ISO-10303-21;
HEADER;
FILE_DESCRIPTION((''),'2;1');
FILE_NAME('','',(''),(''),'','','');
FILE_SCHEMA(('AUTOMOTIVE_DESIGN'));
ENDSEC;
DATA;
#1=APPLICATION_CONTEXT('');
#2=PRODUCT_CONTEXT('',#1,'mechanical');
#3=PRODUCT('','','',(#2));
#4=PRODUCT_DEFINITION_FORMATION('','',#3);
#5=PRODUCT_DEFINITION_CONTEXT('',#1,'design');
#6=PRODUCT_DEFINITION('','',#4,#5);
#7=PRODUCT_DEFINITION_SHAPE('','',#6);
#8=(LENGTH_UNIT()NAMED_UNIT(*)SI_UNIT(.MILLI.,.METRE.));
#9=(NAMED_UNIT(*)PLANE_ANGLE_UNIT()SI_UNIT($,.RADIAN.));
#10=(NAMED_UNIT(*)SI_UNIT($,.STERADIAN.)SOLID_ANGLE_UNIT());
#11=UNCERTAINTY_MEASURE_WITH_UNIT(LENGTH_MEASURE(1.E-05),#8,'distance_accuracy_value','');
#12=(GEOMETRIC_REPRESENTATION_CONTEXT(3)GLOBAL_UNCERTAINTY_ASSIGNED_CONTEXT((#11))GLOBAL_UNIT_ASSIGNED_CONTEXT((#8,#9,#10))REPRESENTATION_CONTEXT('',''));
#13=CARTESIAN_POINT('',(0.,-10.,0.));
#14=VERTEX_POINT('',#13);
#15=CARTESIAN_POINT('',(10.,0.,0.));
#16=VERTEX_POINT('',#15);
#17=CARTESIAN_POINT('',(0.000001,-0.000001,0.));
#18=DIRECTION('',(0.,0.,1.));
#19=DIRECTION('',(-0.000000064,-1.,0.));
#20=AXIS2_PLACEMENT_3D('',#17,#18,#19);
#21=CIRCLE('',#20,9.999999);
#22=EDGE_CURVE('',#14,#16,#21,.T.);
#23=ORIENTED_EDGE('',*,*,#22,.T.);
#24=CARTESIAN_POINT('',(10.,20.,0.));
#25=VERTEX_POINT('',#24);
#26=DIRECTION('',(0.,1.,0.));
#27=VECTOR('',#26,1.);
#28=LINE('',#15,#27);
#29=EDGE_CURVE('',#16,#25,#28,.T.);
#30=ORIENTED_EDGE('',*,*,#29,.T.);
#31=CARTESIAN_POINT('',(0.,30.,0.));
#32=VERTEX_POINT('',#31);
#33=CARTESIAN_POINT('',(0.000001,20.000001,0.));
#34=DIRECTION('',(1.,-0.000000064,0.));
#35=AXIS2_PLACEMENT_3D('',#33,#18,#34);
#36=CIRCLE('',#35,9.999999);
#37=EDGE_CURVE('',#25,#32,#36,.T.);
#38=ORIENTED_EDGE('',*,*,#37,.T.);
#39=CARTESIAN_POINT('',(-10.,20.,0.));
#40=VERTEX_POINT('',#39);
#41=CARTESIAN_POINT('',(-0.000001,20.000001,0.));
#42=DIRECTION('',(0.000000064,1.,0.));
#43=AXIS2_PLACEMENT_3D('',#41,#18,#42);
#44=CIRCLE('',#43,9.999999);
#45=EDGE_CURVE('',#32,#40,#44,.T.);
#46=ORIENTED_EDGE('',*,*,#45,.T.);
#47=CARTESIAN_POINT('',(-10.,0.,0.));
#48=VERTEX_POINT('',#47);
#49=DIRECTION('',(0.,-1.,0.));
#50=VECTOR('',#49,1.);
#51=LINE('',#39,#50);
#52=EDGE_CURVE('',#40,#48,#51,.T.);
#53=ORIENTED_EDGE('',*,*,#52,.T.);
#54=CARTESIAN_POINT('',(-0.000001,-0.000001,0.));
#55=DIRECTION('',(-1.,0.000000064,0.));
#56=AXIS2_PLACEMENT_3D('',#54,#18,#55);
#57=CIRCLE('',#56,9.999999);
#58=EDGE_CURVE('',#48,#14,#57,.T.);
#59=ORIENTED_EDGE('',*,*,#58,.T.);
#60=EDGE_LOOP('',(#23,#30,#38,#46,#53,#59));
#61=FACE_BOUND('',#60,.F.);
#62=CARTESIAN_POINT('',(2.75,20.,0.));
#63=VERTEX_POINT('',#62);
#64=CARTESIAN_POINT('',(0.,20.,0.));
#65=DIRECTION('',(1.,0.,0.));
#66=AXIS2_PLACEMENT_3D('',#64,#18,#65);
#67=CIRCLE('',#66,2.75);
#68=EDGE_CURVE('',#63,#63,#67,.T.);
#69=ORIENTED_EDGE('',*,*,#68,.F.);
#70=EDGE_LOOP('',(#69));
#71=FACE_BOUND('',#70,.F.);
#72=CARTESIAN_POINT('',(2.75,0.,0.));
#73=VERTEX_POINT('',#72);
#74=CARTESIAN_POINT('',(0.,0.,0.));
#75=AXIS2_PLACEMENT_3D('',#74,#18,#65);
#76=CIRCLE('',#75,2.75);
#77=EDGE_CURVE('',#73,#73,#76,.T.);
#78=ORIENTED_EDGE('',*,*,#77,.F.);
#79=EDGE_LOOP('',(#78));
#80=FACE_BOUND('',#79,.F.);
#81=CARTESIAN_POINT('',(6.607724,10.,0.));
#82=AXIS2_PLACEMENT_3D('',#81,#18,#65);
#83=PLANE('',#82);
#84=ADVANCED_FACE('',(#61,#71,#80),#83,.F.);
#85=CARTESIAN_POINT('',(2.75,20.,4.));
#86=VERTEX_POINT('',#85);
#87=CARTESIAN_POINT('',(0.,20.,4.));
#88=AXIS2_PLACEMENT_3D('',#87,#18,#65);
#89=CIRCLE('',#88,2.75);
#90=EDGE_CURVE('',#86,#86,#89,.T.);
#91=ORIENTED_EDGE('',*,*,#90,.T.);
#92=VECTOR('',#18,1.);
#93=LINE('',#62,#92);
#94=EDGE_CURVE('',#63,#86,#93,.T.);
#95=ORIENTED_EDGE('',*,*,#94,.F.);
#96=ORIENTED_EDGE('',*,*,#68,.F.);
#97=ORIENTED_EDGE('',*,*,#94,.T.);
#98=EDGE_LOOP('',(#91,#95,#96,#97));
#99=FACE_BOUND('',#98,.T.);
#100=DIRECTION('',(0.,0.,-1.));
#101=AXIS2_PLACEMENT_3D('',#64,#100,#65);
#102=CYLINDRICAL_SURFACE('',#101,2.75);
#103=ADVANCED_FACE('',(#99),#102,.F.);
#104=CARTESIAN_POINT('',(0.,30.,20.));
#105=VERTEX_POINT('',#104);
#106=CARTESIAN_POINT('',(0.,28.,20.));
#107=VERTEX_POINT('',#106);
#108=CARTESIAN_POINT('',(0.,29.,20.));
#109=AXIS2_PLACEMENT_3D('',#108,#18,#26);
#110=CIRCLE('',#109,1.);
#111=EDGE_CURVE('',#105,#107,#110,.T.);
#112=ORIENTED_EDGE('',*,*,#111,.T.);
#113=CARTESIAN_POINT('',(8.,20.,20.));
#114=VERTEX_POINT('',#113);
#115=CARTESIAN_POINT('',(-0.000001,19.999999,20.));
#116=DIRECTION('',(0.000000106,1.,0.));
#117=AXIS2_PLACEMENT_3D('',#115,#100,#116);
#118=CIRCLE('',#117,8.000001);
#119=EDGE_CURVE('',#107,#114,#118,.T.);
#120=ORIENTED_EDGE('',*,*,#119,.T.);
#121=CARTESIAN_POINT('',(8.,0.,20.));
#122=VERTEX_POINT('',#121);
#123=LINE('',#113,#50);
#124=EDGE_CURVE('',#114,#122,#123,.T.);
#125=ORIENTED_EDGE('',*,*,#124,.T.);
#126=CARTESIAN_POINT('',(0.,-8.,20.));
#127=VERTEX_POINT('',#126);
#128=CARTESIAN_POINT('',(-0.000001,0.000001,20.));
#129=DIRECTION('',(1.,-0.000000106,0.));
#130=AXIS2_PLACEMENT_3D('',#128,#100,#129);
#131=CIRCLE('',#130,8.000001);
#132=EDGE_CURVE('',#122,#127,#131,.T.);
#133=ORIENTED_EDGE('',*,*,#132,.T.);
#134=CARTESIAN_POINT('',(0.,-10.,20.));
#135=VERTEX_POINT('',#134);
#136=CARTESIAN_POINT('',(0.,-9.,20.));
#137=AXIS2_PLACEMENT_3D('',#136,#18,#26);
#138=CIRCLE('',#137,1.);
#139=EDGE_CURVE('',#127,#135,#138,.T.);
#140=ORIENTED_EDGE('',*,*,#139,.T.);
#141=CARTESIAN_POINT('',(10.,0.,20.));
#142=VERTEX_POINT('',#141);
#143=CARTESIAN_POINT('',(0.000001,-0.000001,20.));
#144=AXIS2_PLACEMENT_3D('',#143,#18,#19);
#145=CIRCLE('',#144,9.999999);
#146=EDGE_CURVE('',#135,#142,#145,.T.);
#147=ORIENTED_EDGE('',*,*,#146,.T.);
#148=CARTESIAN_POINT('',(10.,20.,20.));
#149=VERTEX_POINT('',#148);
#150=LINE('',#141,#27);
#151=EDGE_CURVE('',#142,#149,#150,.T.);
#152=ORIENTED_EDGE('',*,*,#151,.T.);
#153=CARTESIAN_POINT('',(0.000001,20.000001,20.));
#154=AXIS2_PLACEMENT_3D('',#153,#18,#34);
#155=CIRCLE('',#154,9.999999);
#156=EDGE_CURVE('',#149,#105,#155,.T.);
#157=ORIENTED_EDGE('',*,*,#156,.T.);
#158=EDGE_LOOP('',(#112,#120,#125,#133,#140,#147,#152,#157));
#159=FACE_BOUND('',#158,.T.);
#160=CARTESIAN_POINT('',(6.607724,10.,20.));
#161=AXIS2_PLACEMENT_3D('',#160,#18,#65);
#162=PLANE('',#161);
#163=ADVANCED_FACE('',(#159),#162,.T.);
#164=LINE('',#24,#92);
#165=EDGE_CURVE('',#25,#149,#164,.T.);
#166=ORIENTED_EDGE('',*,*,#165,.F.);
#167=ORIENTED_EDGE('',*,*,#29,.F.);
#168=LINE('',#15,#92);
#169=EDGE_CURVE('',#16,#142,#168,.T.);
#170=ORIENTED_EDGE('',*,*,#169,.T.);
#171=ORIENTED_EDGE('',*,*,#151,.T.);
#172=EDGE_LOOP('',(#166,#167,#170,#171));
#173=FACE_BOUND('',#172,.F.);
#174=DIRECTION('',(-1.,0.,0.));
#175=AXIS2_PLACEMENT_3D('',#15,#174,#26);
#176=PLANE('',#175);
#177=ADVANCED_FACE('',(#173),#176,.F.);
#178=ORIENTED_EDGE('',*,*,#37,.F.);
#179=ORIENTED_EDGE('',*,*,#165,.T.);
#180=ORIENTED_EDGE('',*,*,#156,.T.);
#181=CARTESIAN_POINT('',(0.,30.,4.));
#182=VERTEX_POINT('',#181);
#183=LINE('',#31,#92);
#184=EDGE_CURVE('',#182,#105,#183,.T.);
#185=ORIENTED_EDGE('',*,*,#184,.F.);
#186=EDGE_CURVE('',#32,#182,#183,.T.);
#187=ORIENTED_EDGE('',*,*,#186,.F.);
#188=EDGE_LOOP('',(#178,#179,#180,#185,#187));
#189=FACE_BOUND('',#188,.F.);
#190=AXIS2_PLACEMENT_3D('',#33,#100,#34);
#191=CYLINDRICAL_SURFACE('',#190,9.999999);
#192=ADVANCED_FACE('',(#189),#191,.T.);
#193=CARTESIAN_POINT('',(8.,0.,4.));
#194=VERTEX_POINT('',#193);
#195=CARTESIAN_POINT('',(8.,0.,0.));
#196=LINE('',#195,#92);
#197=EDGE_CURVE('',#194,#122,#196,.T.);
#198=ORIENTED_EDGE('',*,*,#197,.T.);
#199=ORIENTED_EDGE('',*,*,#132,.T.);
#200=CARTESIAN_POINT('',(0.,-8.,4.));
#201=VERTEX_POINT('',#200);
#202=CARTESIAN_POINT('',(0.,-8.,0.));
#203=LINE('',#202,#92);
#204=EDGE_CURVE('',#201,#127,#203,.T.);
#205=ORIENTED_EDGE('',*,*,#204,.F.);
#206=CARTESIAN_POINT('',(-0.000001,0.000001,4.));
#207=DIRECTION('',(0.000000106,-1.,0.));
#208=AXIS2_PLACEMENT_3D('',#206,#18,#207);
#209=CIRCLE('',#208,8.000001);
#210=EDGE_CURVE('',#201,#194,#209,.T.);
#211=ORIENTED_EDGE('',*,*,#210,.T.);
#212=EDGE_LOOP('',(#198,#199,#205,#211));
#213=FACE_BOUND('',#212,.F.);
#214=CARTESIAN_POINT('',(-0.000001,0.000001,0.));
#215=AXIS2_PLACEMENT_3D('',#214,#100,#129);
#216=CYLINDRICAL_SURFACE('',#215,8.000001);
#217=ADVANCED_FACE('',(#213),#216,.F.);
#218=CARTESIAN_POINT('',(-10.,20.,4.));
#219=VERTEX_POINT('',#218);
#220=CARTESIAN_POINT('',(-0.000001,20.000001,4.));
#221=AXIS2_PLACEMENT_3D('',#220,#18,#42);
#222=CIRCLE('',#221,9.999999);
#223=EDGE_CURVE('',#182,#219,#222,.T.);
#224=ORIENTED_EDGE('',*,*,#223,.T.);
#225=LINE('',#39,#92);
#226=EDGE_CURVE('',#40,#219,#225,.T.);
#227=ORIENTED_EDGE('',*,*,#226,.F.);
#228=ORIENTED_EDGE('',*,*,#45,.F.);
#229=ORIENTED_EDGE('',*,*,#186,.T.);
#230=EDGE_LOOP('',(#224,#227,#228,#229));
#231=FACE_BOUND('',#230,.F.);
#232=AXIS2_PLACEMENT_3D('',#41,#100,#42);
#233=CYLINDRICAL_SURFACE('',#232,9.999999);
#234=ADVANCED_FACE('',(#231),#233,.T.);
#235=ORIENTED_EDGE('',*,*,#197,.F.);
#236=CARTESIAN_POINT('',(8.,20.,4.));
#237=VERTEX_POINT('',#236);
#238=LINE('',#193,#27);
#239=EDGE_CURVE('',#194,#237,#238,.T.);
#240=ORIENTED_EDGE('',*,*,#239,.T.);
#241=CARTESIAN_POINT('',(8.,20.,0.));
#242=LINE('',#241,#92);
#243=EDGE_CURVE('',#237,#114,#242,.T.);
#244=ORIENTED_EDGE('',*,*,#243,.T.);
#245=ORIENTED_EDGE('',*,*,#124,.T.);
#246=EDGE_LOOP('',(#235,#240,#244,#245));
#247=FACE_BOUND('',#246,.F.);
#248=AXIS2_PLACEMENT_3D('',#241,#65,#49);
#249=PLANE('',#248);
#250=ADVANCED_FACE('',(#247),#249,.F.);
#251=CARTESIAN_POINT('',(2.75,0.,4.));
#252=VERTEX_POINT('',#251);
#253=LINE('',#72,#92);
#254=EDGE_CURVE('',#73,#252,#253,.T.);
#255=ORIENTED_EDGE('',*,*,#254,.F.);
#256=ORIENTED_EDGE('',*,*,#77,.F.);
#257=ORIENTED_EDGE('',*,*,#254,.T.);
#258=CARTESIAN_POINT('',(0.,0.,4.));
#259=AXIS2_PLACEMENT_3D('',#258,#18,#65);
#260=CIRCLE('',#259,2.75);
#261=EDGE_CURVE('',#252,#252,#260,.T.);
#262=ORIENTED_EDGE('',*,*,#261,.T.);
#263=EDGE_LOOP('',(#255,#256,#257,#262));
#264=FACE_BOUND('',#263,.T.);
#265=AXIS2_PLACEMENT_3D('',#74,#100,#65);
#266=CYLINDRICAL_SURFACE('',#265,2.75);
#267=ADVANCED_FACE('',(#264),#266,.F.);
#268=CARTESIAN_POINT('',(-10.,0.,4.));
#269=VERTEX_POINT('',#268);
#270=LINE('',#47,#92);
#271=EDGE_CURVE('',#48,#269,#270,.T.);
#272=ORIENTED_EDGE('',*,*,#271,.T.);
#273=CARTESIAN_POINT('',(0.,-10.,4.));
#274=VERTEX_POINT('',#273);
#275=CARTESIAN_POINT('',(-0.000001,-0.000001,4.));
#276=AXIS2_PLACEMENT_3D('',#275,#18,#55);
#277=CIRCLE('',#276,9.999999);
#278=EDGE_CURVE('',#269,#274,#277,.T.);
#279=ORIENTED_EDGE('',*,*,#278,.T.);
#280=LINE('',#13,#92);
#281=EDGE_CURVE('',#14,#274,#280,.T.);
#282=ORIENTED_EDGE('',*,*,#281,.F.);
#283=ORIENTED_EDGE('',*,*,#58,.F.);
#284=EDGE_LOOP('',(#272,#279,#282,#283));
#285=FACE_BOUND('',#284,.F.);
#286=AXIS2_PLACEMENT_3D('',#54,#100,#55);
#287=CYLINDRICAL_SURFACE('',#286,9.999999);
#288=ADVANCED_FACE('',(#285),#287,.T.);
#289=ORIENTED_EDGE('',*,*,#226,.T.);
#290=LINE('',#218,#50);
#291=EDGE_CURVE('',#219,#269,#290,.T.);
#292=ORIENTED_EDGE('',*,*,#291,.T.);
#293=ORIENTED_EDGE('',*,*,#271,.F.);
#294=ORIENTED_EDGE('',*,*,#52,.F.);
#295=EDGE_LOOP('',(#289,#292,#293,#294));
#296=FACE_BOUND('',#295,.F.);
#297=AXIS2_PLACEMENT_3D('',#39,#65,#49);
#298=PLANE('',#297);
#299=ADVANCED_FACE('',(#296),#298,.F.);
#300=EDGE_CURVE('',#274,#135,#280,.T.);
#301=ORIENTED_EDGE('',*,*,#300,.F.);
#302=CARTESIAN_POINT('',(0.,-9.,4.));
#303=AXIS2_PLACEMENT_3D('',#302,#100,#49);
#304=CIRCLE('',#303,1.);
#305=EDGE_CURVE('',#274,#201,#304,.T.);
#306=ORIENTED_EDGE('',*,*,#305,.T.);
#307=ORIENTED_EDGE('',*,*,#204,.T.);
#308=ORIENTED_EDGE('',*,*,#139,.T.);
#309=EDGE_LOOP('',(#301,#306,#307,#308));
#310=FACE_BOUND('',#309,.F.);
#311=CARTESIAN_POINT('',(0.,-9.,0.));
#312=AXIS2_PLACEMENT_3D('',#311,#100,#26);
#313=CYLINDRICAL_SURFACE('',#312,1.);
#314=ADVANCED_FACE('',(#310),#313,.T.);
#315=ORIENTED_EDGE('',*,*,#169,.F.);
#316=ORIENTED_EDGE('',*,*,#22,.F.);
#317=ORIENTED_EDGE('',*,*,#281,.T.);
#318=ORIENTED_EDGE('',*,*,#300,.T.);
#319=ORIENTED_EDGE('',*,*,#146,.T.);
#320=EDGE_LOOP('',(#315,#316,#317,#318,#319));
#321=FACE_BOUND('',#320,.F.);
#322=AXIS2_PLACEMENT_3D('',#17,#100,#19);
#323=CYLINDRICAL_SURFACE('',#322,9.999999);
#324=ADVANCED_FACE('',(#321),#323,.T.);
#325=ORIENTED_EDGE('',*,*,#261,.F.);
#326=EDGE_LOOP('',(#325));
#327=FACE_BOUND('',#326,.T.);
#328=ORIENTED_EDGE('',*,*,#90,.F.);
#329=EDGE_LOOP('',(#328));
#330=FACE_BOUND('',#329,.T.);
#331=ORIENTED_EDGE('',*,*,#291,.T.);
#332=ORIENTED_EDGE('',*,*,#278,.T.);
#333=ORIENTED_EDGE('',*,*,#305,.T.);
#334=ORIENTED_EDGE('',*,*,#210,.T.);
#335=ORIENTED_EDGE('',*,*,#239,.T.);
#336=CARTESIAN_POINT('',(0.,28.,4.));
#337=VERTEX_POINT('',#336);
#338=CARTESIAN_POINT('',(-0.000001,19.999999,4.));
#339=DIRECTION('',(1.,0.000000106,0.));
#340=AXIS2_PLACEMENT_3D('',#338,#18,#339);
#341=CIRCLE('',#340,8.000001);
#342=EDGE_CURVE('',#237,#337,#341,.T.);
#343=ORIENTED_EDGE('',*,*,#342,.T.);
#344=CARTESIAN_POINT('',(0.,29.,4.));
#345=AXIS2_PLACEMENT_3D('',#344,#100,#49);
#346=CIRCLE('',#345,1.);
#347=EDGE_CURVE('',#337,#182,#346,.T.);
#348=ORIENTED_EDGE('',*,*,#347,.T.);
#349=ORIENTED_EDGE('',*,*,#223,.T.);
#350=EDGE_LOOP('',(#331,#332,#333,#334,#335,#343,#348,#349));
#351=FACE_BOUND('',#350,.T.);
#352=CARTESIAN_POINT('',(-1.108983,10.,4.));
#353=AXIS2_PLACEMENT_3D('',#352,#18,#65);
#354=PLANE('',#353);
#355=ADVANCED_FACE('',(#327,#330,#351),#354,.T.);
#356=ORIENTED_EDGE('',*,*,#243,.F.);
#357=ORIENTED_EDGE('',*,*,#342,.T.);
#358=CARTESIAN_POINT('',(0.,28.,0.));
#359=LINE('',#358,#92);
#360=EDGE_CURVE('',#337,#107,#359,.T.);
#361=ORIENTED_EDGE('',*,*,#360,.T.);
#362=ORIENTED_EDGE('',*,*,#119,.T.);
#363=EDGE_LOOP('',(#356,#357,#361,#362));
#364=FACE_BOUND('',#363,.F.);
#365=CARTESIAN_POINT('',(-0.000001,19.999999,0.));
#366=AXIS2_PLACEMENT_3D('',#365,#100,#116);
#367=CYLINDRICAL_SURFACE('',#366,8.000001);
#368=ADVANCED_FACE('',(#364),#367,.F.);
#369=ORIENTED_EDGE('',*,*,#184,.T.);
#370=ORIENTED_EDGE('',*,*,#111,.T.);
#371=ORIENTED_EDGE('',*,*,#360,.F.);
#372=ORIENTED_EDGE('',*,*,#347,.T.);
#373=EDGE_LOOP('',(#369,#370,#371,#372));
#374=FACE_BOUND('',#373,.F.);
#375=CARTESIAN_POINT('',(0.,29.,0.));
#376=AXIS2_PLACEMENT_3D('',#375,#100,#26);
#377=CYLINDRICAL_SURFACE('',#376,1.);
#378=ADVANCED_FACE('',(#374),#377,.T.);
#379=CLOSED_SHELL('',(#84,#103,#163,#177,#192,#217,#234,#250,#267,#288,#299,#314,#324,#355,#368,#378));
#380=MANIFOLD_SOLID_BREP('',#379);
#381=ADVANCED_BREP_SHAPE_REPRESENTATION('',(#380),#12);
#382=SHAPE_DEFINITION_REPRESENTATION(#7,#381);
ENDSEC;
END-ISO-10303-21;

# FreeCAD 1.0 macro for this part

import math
import FreeCAD as App
import Part
import Sketcher

V = App.Vector

doc = App.newDocument("Part")
body = doc.addObject("PartDesign::Body", "Body")

# Sketch on XY plane
sketch1 = body.newObject("Sketcher::SketchObject", "Sketch")
sketch1.AttachmentSupport = (doc.getObject("XY_Plane"), [""])
sketch1.MapMode = "FlatFace"
sketch1.addGeometry([
    Part.ArcOfCircle(Part.Circle(V(0, 20, 0), V(0, 0, 1), 10), math.radians(90), math.radians(180)),  # 0
    Part.LineSegment(V(-10, 20, 0), V(-10, 0, 0)),  # 1
    Part.ArcOfCircle(Part.Circle(V(0, 0, 0), V(0, 0, 1), 10), math.radians(180), math.radians(270)),  # 2
    Part.ArcOfCircle(Part.Circle(V(0, -9, 0), V(0, 0, 1), 1), math.radians(90), math.radians(270)),  # 3
    Part.ArcOfCircle(Part.Circle(V(0, 0, 0), V(0, 0, 1), 8), math.radians(-90), math.radians(0)),  # 4
    Part.LineSegment(V(8, 0, 0), V(8, 20, 0)),  # 5
    Part.ArcOfCircle(Part.Circle(V(0, 20, 0), V(0, 0, 1), 8), math.radians(0), math.radians(90)),  # 6
    Part.ArcOfCircle(Part.Circle(V(0, 29, 0), V(0, 0, 1), 1), math.radians(90), math.radians(270)),  # 7
    Part.Circle(V(0, 0, 0), V(0, 0, 1), 2.8),  # 8
    Part.Circle(V(0, 20, 0), V(0, 0, 1), 2.8),  # 9
], False)
sketch1.addConstraint([
    Sketcher.Constraint("Tangent", 0, 2, 1, 1),
    Sketcher.Constraint("Tangent", 1, 2, 2, 1),
    Sketcher.Constraint("Tangent", 2, 2, 3, 2),
    Sketcher.Constraint("Tangent", 3, 1, 4, 1),
    Sketcher.Constraint("Tangent", 4, 2, 5, 1),
    Sketcher.Constraint("Tangent", 5, 2, 6, 1),
    Sketcher.Constraint("Tangent", 6, 2, 7, 2),
    Sketcher.Constraint("Tangent", 7, 1, 0, 1),
    Sketcher.Constraint("Vertical", 1),
    Sketcher.Constraint("Vertical", 5),
    Sketcher.Constraint("Coincident", 2, 3, -1, 1),
    Sketcher.Constraint("Coincident", 4, 3, -1, 1),
    Sketcher.Constraint("Coincident", 8, 3, -1, 1),
    Sketcher.Constraint("Coincident", 6, 3, 0, 3),
    Sketcher.Constraint("Coincident", 9, 3, 0, 3),
    Sketcher.Constraint("Equal", 0, 2),
    Sketcher.Constraint("Equal", 8, 9),
    Sketcher.Constraint("PointOnObject", 3, 3, -2),
    Sketcher.Constraint("PointOnObject", 7, 3, -2),
    Sketcher.Constraint("Radius", 0, 9.999999),
    Sketcher.Constraint("Radius", 3, 1.0),
    Sketcher.Constraint("Diameter", 8, 5.5),
    Sketcher.Constraint("DistanceY", 1, 2, 1, 1, 20.0),
])
pad1 = body.newObject("PartDesign::Pad", "Pad")
pad1.Profile = sketch1
pad1.Length = 4

# Sketch on XY plane
sketch2 = body.newObject("Sketcher::SketchObject", "Sketch001")
sketch2.AttachmentSupport = (doc.getObject("XY_Plane"), [""])
sketch2.MapMode = "FlatFace"
sketch2.addGeometry([
    Part.ArcOfCircle(Part.Circle(V(0, 20, 0), V(0, 0, 1), 10), math.radians(0), math.radians(90)),  # 0
    Part.ArcOfCircle(Part.Circle(V(0, 29, 0), V(0, 0, 1), 1), math.radians(90), math.radians(270)),  # 1
    Part.ArcOfCircle(Part.Circle(V(0, 20, 0), V(0, 0, 1), 8), math.radians(0), math.radians(90)),  # 2
    Part.LineSegment(V(8, 20, 0), V(8, 0, 0)),  # 3
    Part.ArcOfCircle(Part.Circle(V(0, 0, 0), V(0, 0, 1), 8), math.radians(-90), math.radians(0)),  # 4
    Part.ArcOfCircle(Part.Circle(V(0, -9, 0), V(0, 0, 1), 1), math.radians(90), math.radians(270)),  # 5
    Part.ArcOfCircle(Part.Circle(V(0, 0, 0), V(0, 0, 1), 10), math.radians(-90), math.radians(0)),  # 6
    Part.LineSegment(V(10, 0, 0), V(10, 20, 0)),  # 7
], False)
sketch2.addConstraint([
    Sketcher.Constraint("Tangent", 0, 2, 1, 1),
    Sketcher.Constraint("Tangent", 1, 2, 2, 2),
    Sketcher.Constraint("Tangent", 2, 1, 3, 1),
    Sketcher.Constraint("Tangent", 3, 2, 4, 2),
    Sketcher.Constraint("Tangent", 4, 1, 5, 1),
    Sketcher.Constraint("Tangent", 5, 2, 6, 1),
    Sketcher.Constraint("Tangent", 6, 2, 7, 1),
    Sketcher.Constraint("Tangent", 7, 2, 0, 1),
    Sketcher.Constraint("Vertical", 3),
    Sketcher.Constraint("Vertical", 7),
    Sketcher.Constraint("Coincident", 4, 3, -1, 1),
    Sketcher.Constraint("Coincident", 6, 3, -1, 1),
    Sketcher.Constraint("Coincident", 2, 3, 0, 3),
    Sketcher.Constraint("Equal", 2, 4),
    Sketcher.Constraint("PointOnObject", 1, 3, -2),
    Sketcher.Constraint("PointOnObject", 5, 3, -2),
    Sketcher.Constraint("Radius", 0, 9.999999),
    Sketcher.Constraint("Radius", 1, 1.0),
    Sketcher.Constraint("DistanceY", 3, 2, 3, 1, 20.0),
])
pad2 = body.newObject("PartDesign::Pad", "Pad001")
pad2.Profile = sketch2
pad2.Length = 20

doc.recompute()
